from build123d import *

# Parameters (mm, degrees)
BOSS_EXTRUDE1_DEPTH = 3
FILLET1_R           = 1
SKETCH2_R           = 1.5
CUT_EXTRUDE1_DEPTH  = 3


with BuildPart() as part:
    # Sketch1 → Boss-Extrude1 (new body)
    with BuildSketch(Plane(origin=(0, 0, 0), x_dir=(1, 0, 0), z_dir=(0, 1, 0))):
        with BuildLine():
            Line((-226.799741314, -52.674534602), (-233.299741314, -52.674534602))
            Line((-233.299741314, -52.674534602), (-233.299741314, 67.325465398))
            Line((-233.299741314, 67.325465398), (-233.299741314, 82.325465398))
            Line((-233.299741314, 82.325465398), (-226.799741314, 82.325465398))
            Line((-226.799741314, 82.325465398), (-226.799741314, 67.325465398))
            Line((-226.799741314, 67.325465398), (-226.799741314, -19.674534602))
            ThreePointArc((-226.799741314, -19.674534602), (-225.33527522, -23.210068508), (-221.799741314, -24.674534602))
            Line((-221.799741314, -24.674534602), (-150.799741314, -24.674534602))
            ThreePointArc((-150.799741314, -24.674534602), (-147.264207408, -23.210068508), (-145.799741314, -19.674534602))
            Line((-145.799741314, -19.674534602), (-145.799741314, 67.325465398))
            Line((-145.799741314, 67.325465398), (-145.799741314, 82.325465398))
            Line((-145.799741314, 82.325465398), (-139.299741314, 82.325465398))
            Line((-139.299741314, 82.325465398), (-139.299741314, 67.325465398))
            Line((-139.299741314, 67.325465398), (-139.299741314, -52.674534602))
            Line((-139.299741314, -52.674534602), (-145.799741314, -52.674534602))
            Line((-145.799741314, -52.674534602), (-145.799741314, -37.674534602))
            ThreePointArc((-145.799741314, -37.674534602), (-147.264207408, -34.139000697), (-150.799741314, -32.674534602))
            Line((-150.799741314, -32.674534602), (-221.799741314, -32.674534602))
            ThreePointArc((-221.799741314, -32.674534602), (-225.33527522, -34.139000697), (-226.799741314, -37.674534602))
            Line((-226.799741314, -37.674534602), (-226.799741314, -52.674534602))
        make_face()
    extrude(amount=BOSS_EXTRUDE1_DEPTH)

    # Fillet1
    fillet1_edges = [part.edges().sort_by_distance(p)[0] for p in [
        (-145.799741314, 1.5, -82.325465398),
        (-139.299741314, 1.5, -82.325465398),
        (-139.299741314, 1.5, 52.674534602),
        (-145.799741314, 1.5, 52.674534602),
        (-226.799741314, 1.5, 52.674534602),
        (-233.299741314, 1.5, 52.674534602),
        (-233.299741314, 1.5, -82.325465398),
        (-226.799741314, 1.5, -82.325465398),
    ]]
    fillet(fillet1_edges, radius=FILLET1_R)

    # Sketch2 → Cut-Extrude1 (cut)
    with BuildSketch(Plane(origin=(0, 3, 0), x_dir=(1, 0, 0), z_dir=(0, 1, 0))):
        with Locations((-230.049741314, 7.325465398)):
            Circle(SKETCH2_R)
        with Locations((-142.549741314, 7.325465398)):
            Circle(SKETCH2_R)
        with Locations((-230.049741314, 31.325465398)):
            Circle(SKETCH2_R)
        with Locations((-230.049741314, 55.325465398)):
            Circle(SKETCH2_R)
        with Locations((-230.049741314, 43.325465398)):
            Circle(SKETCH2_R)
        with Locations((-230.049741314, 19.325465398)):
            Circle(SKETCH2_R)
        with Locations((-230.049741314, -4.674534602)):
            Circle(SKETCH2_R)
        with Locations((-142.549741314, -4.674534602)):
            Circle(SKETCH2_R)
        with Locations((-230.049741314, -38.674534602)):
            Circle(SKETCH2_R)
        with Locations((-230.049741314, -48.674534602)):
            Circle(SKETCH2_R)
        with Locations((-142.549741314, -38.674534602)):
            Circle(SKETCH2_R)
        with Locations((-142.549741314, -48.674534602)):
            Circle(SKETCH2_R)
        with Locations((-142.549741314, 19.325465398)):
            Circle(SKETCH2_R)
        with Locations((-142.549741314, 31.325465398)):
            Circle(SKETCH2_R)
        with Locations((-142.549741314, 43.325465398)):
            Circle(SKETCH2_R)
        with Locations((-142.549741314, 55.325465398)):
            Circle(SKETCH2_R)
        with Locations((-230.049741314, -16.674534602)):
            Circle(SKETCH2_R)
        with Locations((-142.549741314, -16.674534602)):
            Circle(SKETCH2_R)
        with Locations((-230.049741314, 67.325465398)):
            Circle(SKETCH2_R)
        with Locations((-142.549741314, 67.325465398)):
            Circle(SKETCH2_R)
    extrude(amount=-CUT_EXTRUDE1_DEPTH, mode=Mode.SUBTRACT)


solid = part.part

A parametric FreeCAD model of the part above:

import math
import FreeCAD as App
import Part
import Sketcher
Q = App.Units.Quantity


def edges_at(feature, points):
    """Names of the edges that pass closest to the given points."""
    edges = feature.Shape.Edges
    near = lambda p: min(range(len(edges)), key=lambda i: edges[i].distToShape(Part.Vertex(*p))[0])
    return sorted({f"Edge{near(p) + 1}" for p in points})

doc = App.newDocument("Part")
body = doc.addObject("PartDesign::Body", "Body")

# Sketch on XZ plane
sketch1 = body.newObject("Sketcher::SketchObject", "Sketch")
sketch1.AttachmentSupport = (doc.getObject("XZ_Plane"), [""])
sketch1.MapMode = "FlatFace"
sketch1.addGeometry(Part.LineSegment(App.Vector(-233.299741, 52.674535, 0), App.Vector(-226.799741, 52.674535, 0)), False)
sketch1.addGeometry(Part.LineSegment(App.Vector(-226.799741, 52.674535, 0), App.Vector(-226.799741, 37.674535, 0)), False)
sketch1.addGeometry(Part.ArcOfCircle(Part.Circle(App.Vector(-221.799741, 37.674535, 0), App.Vector(0, 0, 1), 5), math.radians(-180), math.radians(-90)), False)
sketch1.addGeometry(Part.LineSegment(App.Vector(-221.799741, 32.674535, 0), App.Vector(-150.799741, 32.674535, 0)), False)
sketch1.addGeometry(Part.ArcOfCircle(Part.Circle(App.Vector(-150.799741, 37.674535, 0), App.Vector(0, 0, 1), 5), math.radians(-90), math.radians(0)), False)
sketch1.addGeometry(Part.LineSegment(App.Vector(-145.799741, 37.674535, 0), App.Vector(-145.799741, 52.674535, 0)), False)
sketch1.addGeometry(Part.LineSegment(App.Vector(-145.799741, 52.674535, 0), App.Vector(-139.299741, 52.674535, 0)), False)
sketch1.addGeometry(Part.LineSegment(App.Vector(-139.299741, 52.674535, 0), App.Vector(-139.299741, -82.325465, 0)), False)
sketch1.addGeometry(Part.LineSegment(App.Vector(-139.299741, -82.325465, 0), App.Vector(-145.799741, -82.325465, 0)), False)
sketch1.addGeometry(Part.LineSegment(App.Vector(-145.799741, -82.325465, 0), App.Vector(-145.799741, 19.674535, 0)), False)
sketch1.addGeometry(Part.ArcOfCircle(Part.Circle(App.Vector(-150.799741, 19.674535, 0), App.Vector(0, 0, 1), 5), math.radians(0), math.radians(90)), False)
sketch1.addGeometry(Part.LineSegment(App.Vector(-150.799741, 24.674535, 0), App.Vector(-221.799741, 24.674535, 0)), False)
sketch1.addGeometry(Part.ArcOfCircle(Part.Circle(App.Vector(-221.799741, 19.674535, 0), App.Vector(0, 0, 1), 5), math.radians(90), math.radians(180)), False)
sketch1.addGeometry(Part.LineSegment(App.Vector(-226.799741, 19.674535, 0), App.Vector(-226.799741, -82.325465, 0)), False)
sketch1.addGeometry(Part.LineSegment(App.Vector(-226.799741, -82.325465, 0), App.Vector(-233.299741, -82.325465, 0)), False)
sketch1.addGeometry(Part.LineSegment(App.Vector(-233.299741, -82.325465, 0), App.Vector(-233.299741, 52.674535, 0)), False)
sketch1.addConstraint(Sketcher.Constraint("Coincident", 0, 2, 1, 1))
sketch1.addConstraint(Sketcher.Constraint("Tangent", 1, 2, 2, 1))
sketch1.addConstraint(Sketcher.Constraint("Tangent", 2, 2, 3, 1))
sketch1.addConstraint(Sketcher.Constraint("Tangent", 3, 2, 4, 1))
sketch1.addConstraint(Sketcher.Constraint("Tangent", 4, 2, 5, 1))
sketch1.addConstraint(Sketcher.Constraint("Coincident", 5, 2, 6, 1))
sketch1.addConstraint(Sketcher.Constraint("Coincident", 6, 2, 7, 1))
sketch1.addConstraint(Sketcher.Constraint("Coincident", 7, 2, 8, 1))
sketch1.addConstraint(Sketcher.Constraint("Coincident", 8, 2, 9, 1))
sketch1.addConstraint(Sketcher.Constraint("Tangent", 9, 2, 10, 1))
sketch1.addConstraint(Sketcher.Constraint("Tangent", 10, 2, 11, 1))
sketch1.addConstraint(Sketcher.Constraint("Tangent", 11, 2, 12, 1))
sketch1.addConstraint(Sketcher.Constraint("Tangent", 12, 2, 13, 1))
sketch1.addConstraint(Sketcher.Constraint("Coincident", 13, 2, 14, 1))
sketch1.addConstraint(Sketcher.Constraint("Coincident", 14, 2, 15, 1))
sketch1.addConstraint(Sketcher.Constraint("Coincident", 15, 2, 0, 1))
sketch1.addConstraint(Sketcher.Constraint("Horizontal", 0))
sketch1.addConstraint(Sketcher.Constraint("Vertical", 1))
sketch1.addConstraint(Sketcher.Constraint("Horizontal", 3))
sketch1.addConstraint(Sketcher.Constraint("Vertical", 5))
sketch1.addConstraint(Sketcher.Constraint("Horizontal", 6))
sketch1.addConstraint(Sketcher.Constraint("Vertical", 7))
sketch1.addConstraint(Sketcher.Constraint("Horizontal", 8))
sketch1.addConstraint(Sketcher.Constraint("Vertical", 9))
sketch1.addConstraint(Sketcher.Constraint("Horizontal", 11))
sketch1.addConstraint(Sketcher.Constraint("Vertical", 13))
sketch1.addConstraint(Sketcher.Constraint("Horizontal", 14))
sketch1.addConstraint(Sketcher.Constraint("Vertical", 15))
sketch1.addConstraint(Sketcher.Constraint("Equal", 2, 4))
sketch1.addConstraint(Sketcher.Constraint("Equal", 4, 10))
sketch1.addConstraint(Sketcher.Constraint("Equal", 10, 12))
sketch1.addConstraint(Sketcher.Constraint("Horizontal", 0, 2, 5, 2))
sketch1.addConstraint(Sketcher.Constraint("Horizontal", 8, 2, 13, 2))
sketch1.addConstraint(Sketcher.Constraint("Vertical", 4, 3, 10, 3))
sketch1.addConstraint(Sketcher.Constraint("Vertical", 2, 3, 12, 3))
sketch1.addConstraint(Sketcher.Constraint("Equal", 0, 6))
sketch1.addConstraint(Sketcher.Constraint("Radius", 2, Q("5 mm")))
sketch1.addConstraint(Sketcher.Constraint("DistanceX", 3, 1, 3, 2, Q("71 mm")))
sketch1.addConstraint(Sketcher.Constraint("DistanceY", 1, 2, 1, 1, Q("15 mm")))
sketch1.addConstraint(Sketcher.Constraint("DistanceY", 7, 2, 7, 1, Q("135 mm")))
sketch1.addConstraint(Sketcher.Constraint("DistanceY", 9, 1, 9, 2, Q("102 mm")))
sketch1.addConstraint(Sketcher.Constraint("DistanceX", 0, 1, 0, 2, Q("6.5 mm")))
sketch1.addConstraint(Sketcher.Constraint("DistanceX", 2, 3, -1, 1, Q("221.799741 mm")))
sketch1.addConstraint(Sketcher.Constraint("DistanceY", -1, 1, 2, 3, Q("37.674535 mm")))
pad1 = body.newObject("PartDesign::Pad", "Pad")
pad1.Profile = sketch1
pad1.Length = 3
pad1.Reversed = True
doc.recompute()

fillet = body.newObject("PartDesign::Fillet", "Fillet")
fillet.Base = (pad1, edges_at(pad1, [
    (-145.8, 1.5, -82.325),
    (-139.3, 1.5, -82.325),
    (-139.3, 1.5, 52.675),
    (-145.8, 1.5, 52.675),
    (-226.8, 1.5, 52.675),
    (-233.3, 1.5, 52.675),
    (-233.3, 1.5, -82.325),
    (-226.8, 1.5, -82.325),
]))
fillet.Radius = 1

# Sketch on XZ plane
sketch2 = body.newObject("Sketcher::SketchObject", "Sketch001")
sketch2.AttachmentSupport = (doc.getObject("XZ_Plane"), [""])
sketch2.MapMode = "FlatFace"
sketch2.AttachmentOffset = App.Placement(App.Vector(0, 0, -3), App.Rotation())
sketch2.addGeometry(Part.Circle(App.Vector(-230.049741, -7.325465, 0), App.Vector(0, 0, 1), 1.5), False)
sketch2.addGeometry(Part.Circle(App.Vector(-142.549741, -7.325465, 0), App.Vector(0, 0, 1), 1.5), False)
sketch2.addGeometry(Part.Circle(App.Vector(-230.049741, -31.325465, 0), App.Vector(0, 0, 1), 1.5), False)
sketch2.addGeometry(Part.Circle(App.Vector(-230.049741, -55.325465, 0), App.Vector(0, 0, 1), 1.5), False)
sketch2.addGeometry(Part.Circle(App.Vector(-230.049741, -43.325465, 0), App.Vector(0, 0, 1), 1.5), False)
sketch2.addGeometry(Part.Circle(App.Vector(-230.049741, -19.325465, 0), App.Vector(0, 0, 1), 1.5), False)
sketch2.addGeometry(Part.Circle(App.Vector(-230.049741, 4.674535, 0), App.Vector(0, 0, 1), 1.5), False)
sketch2.addGeometry(Part.Circle(App.Vector(-142.549741, 4.674535, 0), App.Vector(0, 0, 1), 1.5), False)
sketch2.addGeometry(Part.Circle(App.Vector(-230.049741, 38.674535, 0), App.Vector(0, 0, 1), 1.5), False)
sketch2.addGeometry(Part.Circle(App.Vector(-230.049741, 48.674535, 0), App.Vector(0, 0, 1), 1.5), False)
sketch2.addGeometry(Part.Circle(App.Vector(-142.549741, 38.674535, 0), App.Vector(0, 0, 1), 1.5), False)
sketch2.addGeometry(Part.Circle(App.Vector(-142.549741, 48.674535, 0), App.Vector(0, 0, 1), 1.5), False)
sketch2.addGeometry(Part.Circle(App.Vector(-142.549741, -19.325465, 0), App.Vector(0, 0, 1), 1.5), False)
sketch2.addGeometry(Part.Circle(App.Vector(-142.549741, -31.325465, 0), App.Vector(0, 0, 1), 1.5), False)
sketch2.addGeometry(Part.Circle(App.Vector(-142.549741, -43.325465, 0), App.Vector(0, 0, 1), 1.5), False)
sketch2.addGeometry(Part.Circle(App.Vector(-142.549741, -55.325465, 0), App.Vector(0, 0, 1), 1.5), False)
sketch2.addGeometry(Part.Circle(App.Vector(-230.049741, 16.674535, 0), App.Vector(0, 0, 1), 1.5), False)
sketch2.addGeometry(Part.Circle(App.Vector(-142.549741, 16.674535, 0), App.Vector(0, 0, 1), 1.5), False)
sketch2.addGeometry(Part.Circle(App.Vector(-230.049741, -67.325465, 0), App.Vector(0, 0, 1), 1.5), False)
sketch2.addGeometry(Part.Circle(App.Vector(-142.549741, -67.325465, 0), App.Vector(0, 0, 1), 1.5), False)
sketch2.addConstraint(Sketcher.Constraint("Equal", 0, 1))
sketch2.addConstraint(Sketcher.Constraint("Equal", 1, 2))
sketch2.addConstraint(Sketcher.Constraint("Equal", 2, 3))
sketch2.addConstraint(Sketcher.Constraint("Equal", 3, 4))
sketch2.addConstraint(Sketcher.Constraint("Equal", 4, 5))
sketch2.addConstraint(Sketcher.Constraint("Equal", 5, 6))
sketch2.addConstraint(Sketcher.Constraint("Equal", 6, 7))
sketch2.addConstraint(Sketcher.Constraint("Equal", 7, 8))
sketch2.addConstraint(Sketcher.Constraint("Equal", 8, 9))
sketch2.addConstraint(Sketcher.Constraint("Equal", 9, 10))
sketch2.addConstraint(Sketcher.Constraint("Equal", 10, 11))
sketch2.addConstraint(Sketcher.Constraint("Equal", 11, 12))
sketch2.addConstraint(Sketcher.Constraint("Equal", 12, 13))
sketch2.addConstraint(Sketcher.Constraint("Equal", 13, 14))
sketch2.addConstraint(Sketcher.Constraint("Equal", 14, 15))
sketch2.addConstraint(Sketcher.Constraint("Equal", 15, 16))
sketch2.addConstraint(Sketcher.Constraint("Equal", 16, 17))
sketch2.addConstraint(Sketcher.Constraint("Equal", 17, 18))
sketch2.addConstraint(Sketcher.Constraint("Equal", 18, 19))
sketch2.addConstraint(Sketcher.Constraint("Horizontal", 0, 3, 1, 3))
sketch2.addConstraint(Sketcher.Constraint("Horizontal", 6, 3, 7, 3))
sketch2.addConstraint(Sketcher.Constraint("Horizontal", 8, 3, 10, 3))
sketch2.addConstraint(Sketcher.Constraint("Horizontal", 9, 3, 11, 3))
sketch2.addConstraint(Sketcher.Constraint("Horizontal", 5, 3, 12, 3))
sketch2.addConstraint(Sketcher.Constraint("Horizontal", 2, 3, 13, 3))
sketch2.addConstraint(Sketcher.Constraint("Horizontal", 4, 3, 14, 3))
sketch2.addConstraint(Sketcher.Constraint("Horizontal", 3, 3, 15, 3))
sketch2.addConstraint(Sketcher.Constraint("Horizontal", 16, 3, 17, 3))
sketch2.addConstraint(Sketcher.Constraint("Horizontal", 18, 3, 19, 3))
sketch2.addConstraint(Sketcher.Constraint("Vertical", 0, 3, 2, 3))
sketch2.addConstraint(Sketcher.Constraint("Vertical", 2, 3, 3, 3))
sketch2.addConstraint(Sketcher.Constraint("Vertical", 3, 3, 4, 3))
sketch2.addConstraint(Sketcher.Constraint("Vertical", 4, 3, 5, 3))
sketch2.addConstraint(Sketcher.Constraint("Vertical", 5, 3, 6, 3))
sketch2.addConstraint(Sketcher.Constraint("Vertical", 1, 3, 7, 3))
sketch2.addConstraint(Sketcher.Constraint("Vertical", 6, 3, 8, 3))
sketch2.addConstraint(Sketcher.Constraint("Vertical", 8, 3, 9, 3))
sketch2.addConstraint(Sketcher.Constraint("Vertical", 7, 3, 10, 3))
sketch2.addConstraint(Sketcher.Constraint("Vertical", 10, 3, 11, 3))
sketch2.addConstraint(Sketcher.Constraint("Vertical", 11, 3, 12, 3))
sketch2.addConstraint(Sketcher.Constraint("Vertical", 12, 3, 13, 3))
sketch2.addConstraint(Sketcher.Constraint("Vertical", 13, 3, 14, 3))
sketch2.addConstraint(Sketcher.Constraint("Vertical", 14, 3, 15, 3))
sketch2.addConstraint(Sketcher.Constraint("Vertical", 9, 3, 16, 3))
sketch2.addConstraint(Sketcher.Constraint("Vertical", 15, 3, 17, 3))
sketch2.addConstraint(Sketcher.Constraint("Vertical", 16, 3, 18, 3))
sketch2.addConstraint(Sketcher.Constraint("Vertical", 17, 3, 19, 3))
sketch2.addConstraint(Sketcher.Constraint("Diameter", 0, Q("3 mm")))
sketch2.addConstraint(Sketcher.Constraint("DistanceY", 2, 3, 0, 3, Q("24 mm")))
sketch2.addConstraint(Sketcher.Constraint("DistanceY", 3, 3, 2, 3, Q("24 mm")))
sketch2.addConstraint(Sketcher.Constraint("DistanceY", 4, 3, 2, 3, Q("12 mm")))
sketch2.addConstraint(Sketcher.Constraint("DistanceY", 5, 3, 0, 3, Q("12 mm")))
sketch2.addConstraint(Sketcher.Constraint("DistanceY", 0, 3, 6, 3, Q("12 mm")))
sketch2.addConstraint(Sketcher.Constraint("DistanceY", 6, 3, 8, 3, Q("34 mm")))
sketch2.addConstraint(Sketcher.Constraint("DistanceY", 8, 3, 9, 3, Q("10 mm")))
sketch2.addConstraint(Sketcher.Constraint("DistanceY", 6, 3, 16, 3, Q("12 mm")))
sketch2.addConstraint(Sketcher.Constraint("DistanceY", 18, 3, 3, 3, Q("12 mm")))
sketch2.addConstraint(Sketcher.Constraint("DistanceX", 0, 3, 1, 3, Q("87.5 mm")))
sketch2.addConstraint(Sketcher.Constraint("DistanceX", 0, 3, -1, 1, Q("230.049741 mm")))
sketch2.addConstraint(Sketcher.Constraint("DistanceY", 0, 3, -1, 1, Q("7.325465 mm")))
pocket1 = body.newObject("PartDesign::Pocket", "Pocket")
pocket1.Profile = sketch2
pocket1.Length = 3
pocket1.Reversed = True

doc.recompute()
